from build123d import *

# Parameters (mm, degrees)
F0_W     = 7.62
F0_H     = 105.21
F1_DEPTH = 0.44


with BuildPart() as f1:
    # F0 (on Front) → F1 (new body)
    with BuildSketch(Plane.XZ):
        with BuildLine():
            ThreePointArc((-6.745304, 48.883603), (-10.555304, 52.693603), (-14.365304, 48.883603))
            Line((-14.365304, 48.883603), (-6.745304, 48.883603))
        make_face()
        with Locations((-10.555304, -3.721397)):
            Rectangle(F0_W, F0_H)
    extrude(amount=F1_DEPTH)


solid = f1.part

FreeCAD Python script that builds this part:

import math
import FreeCAD as App
import Part
import Sketcher

V = App.Vector
Q = App.Units.Quantity

doc = App.newDocument("Part")
params = doc.addObject("Spreadsheet::Sheet", "Params")
for row, (alias, value) in enumerate([
    ("sketch1_radius", "0.15 in"),
    ("pad1_length", "0.44 mm"),
], start=1):
    params.set(f"A{row}", alias)
    params.set(f"B{row}", "=" + value)
    params.setAlias(f"B{row}", alias)

body = doc.addObject("PartDesign::Body", "Body")

sketch1 = body.newObject("Sketcher::SketchObject", "Sketch")
sketch1.AttachmentSupport = (doc.getObject("XZ_Plane"), [""])
sketch1.MapMode = "FlatFace"
sketch1.addGeometry([
    Part.ArcOfCircle(Part.Circle(V(-10.555304, 48.883603, 0), V(0, 0, 1), 3.81), math.radians(0), math.radians(180)),
    Part.LineSegment(V(-14.365304, 48.883603, 0), V(-14.365304, -56.326397, 0)),
    Part.LineSegment(V(-14.365304, -56.326397, 0), V(-6.745304, -56.326397, 0)),
    Part.LineSegment(V(-6.745304, -56.326397, 0), V(-6.745304, 48.883603, 0)),
], False)
sketch1.addConstraint([
    Sketcher.Constraint("Tangent", 0, 2, 1, 1),
    Sketcher.Constraint("Coincident", 1, 2, 2, 1),
    Sketcher.Constraint("Coincident", 2, 2, 3, 1),
    Sketcher.Constraint("Tangent", 3, 2, 0, 1),
    Sketcher.Constraint("Vertical", 1),
    Sketcher.Constraint("Horizontal", 2),
    Sketcher.Constraint("Vertical", 3),
    Sketcher.Constraint("Radius", 0, Q("0.15 in")),
    Sketcher.Constraint("DistanceY", 1, 2, 1, 1, Q("105.21 mm")),
    Sketcher.Constraint("DistanceX", 0, 3, -1, 1, Q("10.555304 mm")),
    Sketcher.Constraint("DistanceY", -1, 1, 0, 3, Q("48.883603 mm")),
])
sketch1.setExpression("Constraints[7]", "Params.sketch1_radius")
pad1 = body.newObject("PartDesign::Pad", "Pad")
pad1.Profile = sketch1
pad1.setExpression("Length", "Params.pad1_length")

doc.recompute()
